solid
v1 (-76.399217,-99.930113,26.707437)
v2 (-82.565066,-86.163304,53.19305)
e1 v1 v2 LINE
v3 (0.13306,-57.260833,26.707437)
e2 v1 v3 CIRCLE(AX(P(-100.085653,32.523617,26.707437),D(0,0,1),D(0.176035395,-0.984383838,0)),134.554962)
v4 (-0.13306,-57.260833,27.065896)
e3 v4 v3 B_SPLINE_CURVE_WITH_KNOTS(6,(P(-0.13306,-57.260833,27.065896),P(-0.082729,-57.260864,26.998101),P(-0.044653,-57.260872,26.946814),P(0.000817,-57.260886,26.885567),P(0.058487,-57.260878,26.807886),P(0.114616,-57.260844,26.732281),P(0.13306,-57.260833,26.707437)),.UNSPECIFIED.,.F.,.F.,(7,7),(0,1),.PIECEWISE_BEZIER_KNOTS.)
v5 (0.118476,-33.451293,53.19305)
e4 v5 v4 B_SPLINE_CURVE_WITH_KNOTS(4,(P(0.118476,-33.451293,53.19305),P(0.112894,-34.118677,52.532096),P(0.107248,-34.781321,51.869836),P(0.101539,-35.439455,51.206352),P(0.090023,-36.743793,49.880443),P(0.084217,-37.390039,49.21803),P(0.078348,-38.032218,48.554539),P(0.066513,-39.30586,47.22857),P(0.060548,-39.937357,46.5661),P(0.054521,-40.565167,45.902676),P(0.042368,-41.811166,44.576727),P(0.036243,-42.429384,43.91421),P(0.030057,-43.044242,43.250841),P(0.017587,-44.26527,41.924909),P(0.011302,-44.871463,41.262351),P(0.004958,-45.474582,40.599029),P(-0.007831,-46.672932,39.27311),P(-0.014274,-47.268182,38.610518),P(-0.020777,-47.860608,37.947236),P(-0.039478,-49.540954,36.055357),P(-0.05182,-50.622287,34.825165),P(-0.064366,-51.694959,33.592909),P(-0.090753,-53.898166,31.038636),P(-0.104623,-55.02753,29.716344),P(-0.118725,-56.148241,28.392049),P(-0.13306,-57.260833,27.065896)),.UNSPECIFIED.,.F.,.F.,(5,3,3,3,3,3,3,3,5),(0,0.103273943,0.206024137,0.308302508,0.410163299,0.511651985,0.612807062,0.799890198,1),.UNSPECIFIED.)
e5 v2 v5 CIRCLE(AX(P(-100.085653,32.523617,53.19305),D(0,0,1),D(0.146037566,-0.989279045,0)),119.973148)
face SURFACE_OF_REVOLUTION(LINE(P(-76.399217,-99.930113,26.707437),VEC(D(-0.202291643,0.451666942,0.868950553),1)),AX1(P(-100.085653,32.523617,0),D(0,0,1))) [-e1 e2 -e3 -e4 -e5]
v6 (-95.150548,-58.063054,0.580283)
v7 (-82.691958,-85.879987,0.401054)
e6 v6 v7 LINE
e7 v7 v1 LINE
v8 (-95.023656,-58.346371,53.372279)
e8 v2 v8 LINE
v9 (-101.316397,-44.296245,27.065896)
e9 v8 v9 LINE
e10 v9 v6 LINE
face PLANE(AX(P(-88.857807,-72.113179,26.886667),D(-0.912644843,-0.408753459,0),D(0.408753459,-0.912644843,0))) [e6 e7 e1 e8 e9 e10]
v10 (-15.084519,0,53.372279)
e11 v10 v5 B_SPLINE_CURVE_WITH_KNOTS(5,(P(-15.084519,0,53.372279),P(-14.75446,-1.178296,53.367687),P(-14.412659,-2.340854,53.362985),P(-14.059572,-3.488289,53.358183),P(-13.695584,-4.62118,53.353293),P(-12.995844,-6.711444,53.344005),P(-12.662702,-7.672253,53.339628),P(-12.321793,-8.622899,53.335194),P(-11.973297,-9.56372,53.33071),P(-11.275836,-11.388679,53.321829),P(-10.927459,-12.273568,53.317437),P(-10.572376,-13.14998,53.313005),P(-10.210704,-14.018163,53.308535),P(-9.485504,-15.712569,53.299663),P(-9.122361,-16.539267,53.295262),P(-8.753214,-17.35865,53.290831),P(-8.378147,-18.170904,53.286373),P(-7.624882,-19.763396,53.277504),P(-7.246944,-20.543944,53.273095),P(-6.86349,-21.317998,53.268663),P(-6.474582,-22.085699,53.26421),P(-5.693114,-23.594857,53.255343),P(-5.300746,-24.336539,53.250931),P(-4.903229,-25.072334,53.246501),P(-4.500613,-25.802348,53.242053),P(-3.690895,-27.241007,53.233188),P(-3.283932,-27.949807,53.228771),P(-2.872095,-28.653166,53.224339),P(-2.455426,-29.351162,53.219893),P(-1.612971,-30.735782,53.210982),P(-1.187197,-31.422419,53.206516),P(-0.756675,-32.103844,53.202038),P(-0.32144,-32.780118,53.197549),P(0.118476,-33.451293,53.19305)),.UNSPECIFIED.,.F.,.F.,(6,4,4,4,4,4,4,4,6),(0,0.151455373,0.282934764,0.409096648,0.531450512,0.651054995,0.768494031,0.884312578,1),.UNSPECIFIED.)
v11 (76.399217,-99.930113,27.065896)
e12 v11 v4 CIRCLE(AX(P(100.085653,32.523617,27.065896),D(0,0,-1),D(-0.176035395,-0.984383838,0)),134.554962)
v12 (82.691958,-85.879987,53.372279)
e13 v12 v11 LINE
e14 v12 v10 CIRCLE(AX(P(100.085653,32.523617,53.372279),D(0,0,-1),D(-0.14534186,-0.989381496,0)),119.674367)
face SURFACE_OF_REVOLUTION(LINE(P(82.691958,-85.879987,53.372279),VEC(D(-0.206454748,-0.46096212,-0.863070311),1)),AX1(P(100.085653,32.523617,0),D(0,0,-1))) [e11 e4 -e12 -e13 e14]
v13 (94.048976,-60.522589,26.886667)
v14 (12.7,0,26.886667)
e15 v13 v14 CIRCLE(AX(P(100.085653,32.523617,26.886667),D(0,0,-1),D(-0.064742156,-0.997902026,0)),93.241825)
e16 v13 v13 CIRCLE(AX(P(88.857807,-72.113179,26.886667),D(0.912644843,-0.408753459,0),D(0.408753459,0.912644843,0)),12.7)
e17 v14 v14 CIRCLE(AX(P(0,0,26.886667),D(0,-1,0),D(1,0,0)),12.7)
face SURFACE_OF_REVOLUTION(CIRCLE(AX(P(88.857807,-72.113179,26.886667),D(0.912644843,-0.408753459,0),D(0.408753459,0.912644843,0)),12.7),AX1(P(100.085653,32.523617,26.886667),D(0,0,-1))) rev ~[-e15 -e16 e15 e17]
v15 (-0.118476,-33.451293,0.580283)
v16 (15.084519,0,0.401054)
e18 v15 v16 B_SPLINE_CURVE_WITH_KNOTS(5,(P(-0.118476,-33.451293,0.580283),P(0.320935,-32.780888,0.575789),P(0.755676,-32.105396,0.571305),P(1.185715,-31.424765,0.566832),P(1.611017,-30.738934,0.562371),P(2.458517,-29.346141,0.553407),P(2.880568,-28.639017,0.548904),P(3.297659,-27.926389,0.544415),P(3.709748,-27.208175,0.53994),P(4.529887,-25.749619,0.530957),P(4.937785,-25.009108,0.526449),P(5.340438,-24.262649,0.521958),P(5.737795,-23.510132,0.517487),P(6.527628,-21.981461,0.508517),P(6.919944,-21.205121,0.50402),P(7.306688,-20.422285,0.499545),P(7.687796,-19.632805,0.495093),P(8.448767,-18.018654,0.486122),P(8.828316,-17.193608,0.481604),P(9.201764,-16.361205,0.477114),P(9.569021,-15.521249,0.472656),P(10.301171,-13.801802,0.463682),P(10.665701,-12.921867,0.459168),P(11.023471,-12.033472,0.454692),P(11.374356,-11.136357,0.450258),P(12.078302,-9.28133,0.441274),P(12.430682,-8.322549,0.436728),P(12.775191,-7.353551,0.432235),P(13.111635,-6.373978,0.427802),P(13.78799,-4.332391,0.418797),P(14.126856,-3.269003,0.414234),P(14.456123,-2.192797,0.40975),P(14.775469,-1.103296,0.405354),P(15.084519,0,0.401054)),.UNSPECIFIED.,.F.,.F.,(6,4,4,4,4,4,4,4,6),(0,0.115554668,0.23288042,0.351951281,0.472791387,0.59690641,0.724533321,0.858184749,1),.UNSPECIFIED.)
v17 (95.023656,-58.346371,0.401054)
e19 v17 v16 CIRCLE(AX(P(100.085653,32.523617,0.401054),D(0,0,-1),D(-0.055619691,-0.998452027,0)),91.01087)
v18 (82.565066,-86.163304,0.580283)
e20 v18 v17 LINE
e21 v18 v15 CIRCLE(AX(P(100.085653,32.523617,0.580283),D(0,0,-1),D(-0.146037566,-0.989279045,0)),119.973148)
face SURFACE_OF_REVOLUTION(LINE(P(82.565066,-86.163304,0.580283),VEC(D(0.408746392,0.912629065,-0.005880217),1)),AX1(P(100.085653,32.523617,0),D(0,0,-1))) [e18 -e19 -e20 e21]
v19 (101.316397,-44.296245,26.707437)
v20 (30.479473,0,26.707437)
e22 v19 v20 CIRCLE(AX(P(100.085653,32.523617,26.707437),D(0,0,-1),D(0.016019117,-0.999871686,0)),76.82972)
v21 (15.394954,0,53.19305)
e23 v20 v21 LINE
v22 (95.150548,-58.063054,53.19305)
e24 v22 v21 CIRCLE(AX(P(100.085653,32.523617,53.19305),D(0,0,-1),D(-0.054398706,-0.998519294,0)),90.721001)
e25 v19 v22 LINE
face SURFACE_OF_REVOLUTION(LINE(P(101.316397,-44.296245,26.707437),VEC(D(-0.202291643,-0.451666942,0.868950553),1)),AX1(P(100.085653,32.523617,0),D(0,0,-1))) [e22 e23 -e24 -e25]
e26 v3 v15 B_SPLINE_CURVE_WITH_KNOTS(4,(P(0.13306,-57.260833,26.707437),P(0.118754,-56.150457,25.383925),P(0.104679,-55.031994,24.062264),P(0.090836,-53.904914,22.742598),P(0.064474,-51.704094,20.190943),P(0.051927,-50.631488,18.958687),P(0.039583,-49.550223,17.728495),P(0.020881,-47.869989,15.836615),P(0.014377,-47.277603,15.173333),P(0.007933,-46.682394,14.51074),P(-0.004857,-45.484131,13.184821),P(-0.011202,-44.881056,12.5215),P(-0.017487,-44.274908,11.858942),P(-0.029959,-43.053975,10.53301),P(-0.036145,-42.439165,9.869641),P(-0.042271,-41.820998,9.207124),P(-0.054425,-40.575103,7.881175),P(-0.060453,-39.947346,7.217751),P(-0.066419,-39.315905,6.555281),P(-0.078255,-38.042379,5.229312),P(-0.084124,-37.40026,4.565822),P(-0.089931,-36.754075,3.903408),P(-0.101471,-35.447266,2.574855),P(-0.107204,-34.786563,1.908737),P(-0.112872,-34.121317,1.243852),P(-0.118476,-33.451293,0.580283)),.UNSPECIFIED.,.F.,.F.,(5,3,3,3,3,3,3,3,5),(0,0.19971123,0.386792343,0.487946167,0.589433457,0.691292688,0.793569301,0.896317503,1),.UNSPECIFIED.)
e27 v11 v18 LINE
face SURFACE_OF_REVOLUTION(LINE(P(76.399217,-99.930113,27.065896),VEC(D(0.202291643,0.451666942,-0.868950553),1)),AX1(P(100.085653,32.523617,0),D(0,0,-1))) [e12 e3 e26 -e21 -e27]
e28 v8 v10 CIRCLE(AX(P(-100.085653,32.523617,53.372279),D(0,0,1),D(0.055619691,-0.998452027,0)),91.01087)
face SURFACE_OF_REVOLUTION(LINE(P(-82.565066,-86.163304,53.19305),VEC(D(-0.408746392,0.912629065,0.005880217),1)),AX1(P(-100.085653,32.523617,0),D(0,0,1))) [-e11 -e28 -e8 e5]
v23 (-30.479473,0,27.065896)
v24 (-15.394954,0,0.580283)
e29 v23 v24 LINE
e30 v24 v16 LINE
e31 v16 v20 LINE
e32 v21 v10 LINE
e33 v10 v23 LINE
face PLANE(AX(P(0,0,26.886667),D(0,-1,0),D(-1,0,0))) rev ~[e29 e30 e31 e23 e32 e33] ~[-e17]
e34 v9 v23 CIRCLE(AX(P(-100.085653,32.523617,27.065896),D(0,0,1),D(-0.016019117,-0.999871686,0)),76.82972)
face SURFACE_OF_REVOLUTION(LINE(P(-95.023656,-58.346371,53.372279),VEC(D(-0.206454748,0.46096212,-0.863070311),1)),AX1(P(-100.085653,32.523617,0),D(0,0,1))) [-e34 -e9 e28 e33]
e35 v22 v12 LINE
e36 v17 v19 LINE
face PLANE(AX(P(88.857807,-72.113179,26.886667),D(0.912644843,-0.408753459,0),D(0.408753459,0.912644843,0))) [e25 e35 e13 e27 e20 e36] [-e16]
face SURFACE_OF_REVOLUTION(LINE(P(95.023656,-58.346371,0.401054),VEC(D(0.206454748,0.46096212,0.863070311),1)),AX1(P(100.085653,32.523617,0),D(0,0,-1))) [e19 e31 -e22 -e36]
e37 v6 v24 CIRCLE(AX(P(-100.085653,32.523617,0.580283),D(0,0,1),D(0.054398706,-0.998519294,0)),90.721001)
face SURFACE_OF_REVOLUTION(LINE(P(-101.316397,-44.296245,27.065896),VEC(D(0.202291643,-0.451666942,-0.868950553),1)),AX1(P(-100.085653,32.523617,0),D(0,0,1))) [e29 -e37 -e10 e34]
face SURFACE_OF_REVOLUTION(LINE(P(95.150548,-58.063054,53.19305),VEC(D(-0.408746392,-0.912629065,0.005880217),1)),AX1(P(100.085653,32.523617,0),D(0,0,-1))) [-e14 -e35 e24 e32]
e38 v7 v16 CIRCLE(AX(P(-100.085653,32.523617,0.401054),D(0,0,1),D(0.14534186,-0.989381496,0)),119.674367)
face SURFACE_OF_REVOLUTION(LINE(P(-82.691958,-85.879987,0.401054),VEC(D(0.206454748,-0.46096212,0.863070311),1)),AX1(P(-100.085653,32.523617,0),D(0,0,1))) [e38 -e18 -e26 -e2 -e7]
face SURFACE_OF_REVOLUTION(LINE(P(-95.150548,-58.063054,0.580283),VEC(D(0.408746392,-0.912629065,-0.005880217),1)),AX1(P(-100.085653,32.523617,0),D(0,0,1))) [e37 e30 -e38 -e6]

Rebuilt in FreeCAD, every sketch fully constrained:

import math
import FreeCAD as App
import Part
import Sketcher

V = App.Vector
Q = App.Units.Quantity

doc = App.newDocument("Part")
body = doc.addObject("PartDesign::Body", "Body")

sketch1 = doc.addObject("Sketcher::SketchObject", "Sketch")
body.addObject(sketch1)
sketch1.AttachmentSupport = (doc.XZ_Plane, [""])
sketch1.MapMode = "FlatFace"
sketch1.addGeometry([
    Part.LineSegment(V(-30, 27, 0), V(-15, 1, 0)),
    Part.LineSegment(V(-15, 1, 0), V(15, 0, 0)),
    Part.LineSegment(V(15, 0, 0), V(30, 27, 0)),
    Part.LineSegment(V(30, 27, 0), V(15, 53, 0)),
    Part.LineSegment(V(15, 53, 0), V(-15, 53, 0)),
    Part.LineSegment(V(-15, 53, 0), V(-30, 27, 0)),
], False)
sketch1.addConstraint([
    Sketcher.Constraint("Coincident", 0, 2, 1, 1),
    Sketcher.Constraint("Coincident", 1, 2, 2, 1),
    Sketcher.Constraint("Coincident", 2, 2, 3, 1),
    Sketcher.Constraint("Coincident", 3, 2, 4, 1),
    Sketcher.Constraint("Coincident", 4, 2, 5, 1),
    Sketcher.Constraint("Coincident", 5, 2, 0, 1),
    Sketcher.Constraint("Parallel", 0, 3),
    Sketcher.Constraint("Parallel", 1, 4),
    Sketcher.Constraint("Parallel", 2, 5),
    Sketcher.Constraint("Equal", 0, 1),
    Sketcher.Constraint("Equal", 1, 2),
    Sketcher.Constraint("Equal", 2, 3),
    Sketcher.Constraint("Distance", 0, Q("1.2 in")),
    Sketcher.Constraint("DistanceX", -1, 1, 1, 2, 15.084519),
    Sketcher.Constraint("DistanceY", -1, 1, 3, 2, 53.19305),
    Sketcher.Constraint("DistanceX", 4, 2, -1, 1, 15.084519),
    Sketcher.Constraint("DistanceY", -1, 1, 4, 2, 53.372279),
    Sketcher.Constraint("DistanceX", 3, 2, 2, 2, 15.084519),
])

sketch2 = doc.addObject("Sketcher::SketchObject", "Sketch001")
body.addObject(sketch2)
sketch2.AttachmentSupport = (doc.XY_Plane, [""])
sketch2.MapMode = "FlatFace"
sketch2.addGeometry(Part.ArcOfCircle(Part.Circle(V(100, 33, 0), V(0, 0, 1), 105), math.radians(-162), math.radians(-96)), False)
sketch2.addConstraint([
    Sketcher.Constraint("Coincident", 0, 1, -1, 1),
    Sketcher.Constraint("Radius", 0, 105.237463),
    Sketcher.Constraint("DistanceY", 0, 2, -1, 1, 72.113179),
    Sketcher.Constraint("DistanceX", -1, 1, 0, 3, 100.085653),
])
doc.recompute()

additivepipe = doc.addObject("PartDesign::AdditivePipe", "AdditivePipe")
body.addObject(additivepipe)
additivepipe.Profile = sketch1
additivepipe.Spine = (sketch2, ["Edge1"])

sketch3 = doc.addObject("Sketcher::SketchObject", "Sketch002")
body.addObject(sketch3)
sketch3.AttachmentSupport = (doc.XZ_Plane, [""])
sketch3.MapMode = "FlatFace"
sketch3.addGeometry([
    Part.LineSegment(V(-30, 27, 0), V(-15, 1, 0)),
    Part.LineSegment(V(-15, 1, 0), V(15, 0, 0)),
    Part.LineSegment(V(15, 0, 0), V(30, 27, 0)),
    Part.LineSegment(V(30, 27, 0), V(15, 53, 0)),
    Part.LineSegment(V(15, 53, 0), V(-15, 53, 0)),
    Part.LineSegment(V(-15, 53, 0), V(-30, 27, 0)),
], False)
sketch3.addConstraint([
    Sketcher.Constraint("Coincident", 0, 2, 1, 1),
    Sketcher.Constraint("Coincident", 1, 2, 2, 1),
    Sketcher.Constraint("Coincident", 2, 2, 3, 1),
    Sketcher.Constraint("Coincident", 3, 2, 4, 1),
    Sketcher.Constraint("Coincident", 4, 2, 5, 1),
    Sketcher.Constraint("Coincident", 5, 2, 0, 1),
    Sketcher.Constraint("Parallel", 0, 3),
    Sketcher.Constraint("Parallel", 1, 4),
    Sketcher.Constraint("Parallel", 2, 5),
    Sketcher.Constraint("Equal", 0, 1),
    Sketcher.Constraint("Equal", 1, 2),
    Sketcher.Constraint("Equal", 2, 3),
    Sketcher.Constraint("Distance", 0, Q("1.2 in")),
    Sketcher.Constraint("DistanceX", -1, 1, 1, 2, 15.084519),
    Sketcher.Constraint("DistanceY", -1, 1, 3, 2, 53.19305),
    Sketcher.Constraint("DistanceX", 4, 2, -1, 1, 15.084519),
    Sketcher.Constraint("DistanceY", -1, 1, 4, 2, 53.372279),
    Sketcher.Constraint("DistanceX", 3, 2, 2, 2, 15.084519),
])

sketch4 = doc.addObject("Sketcher::SketchObject", "Sketch003")
body.addObject(sketch4)
sketch4.AttachmentSupport = (doc.XY_Plane, [""])
sketch4.MapMode = "FlatFace"
sketch4.addGeometry(Part.ArcOfCircle(Part.Circle(V(-100, 33, 0), V(0, 0, 1), 105), math.radians(-84), math.radians(-18)), False)
sketch4.addConstraint([
    Sketcher.Constraint("Coincident", 0, 2, -1, 1),
    Sketcher.Constraint("Radius", 0, 105.237463),
    Sketcher.Constraint("DistanceY", 0, 1, -1, 1, 72.113179),
    Sketcher.Constraint("DistanceX", 0, 3, -1, 1, 100.085653),
])
doc.recompute()

additivepipe2 = doc.addObject("PartDesign::AdditivePipe", "AdditivePipe001")
body.addObject(additivepipe2)
additivepipe2.Profile = sketch3
additivepipe2.Spine = (sketch4, ["Edge1"])

sketch5 = doc.addObject("Sketcher::SketchObject", "Sketch004")
body.addObject(sketch5)
sketch5.AttachmentSupport = (doc.XZ_Plane, [""])
sketch5.MapMode = "FlatFace"
sketch5.addGeometry(Part.Circle(V(0, 27, 0), V(0, 0, 1), 13), False)
sketch5.addConstraint([
    Sketcher.Constraint("PointOnObject", 0, 3, -2),
    Sketcher.Constraint("Diameter", 0, Q("1 in")),
    Sketcher.Constraint("DistanceY", -1, 1, 0, 3, 26.886667),
])

sketch6 = doc.addObject("Sketcher::SketchObject", "Sketch005")
body.addObject(sketch6)
sketch6.AttachmentSupport = (doc.XY_Plane, [""])
sketch6.MapMode = "FlatFace"
sketch6.addGeometry(Part.ArcOfCircle(Part.Circle(V(100, 33, 0), V(0, 0, 1), 105), math.radians(-162), math.radians(-96)), False)
sketch6.addConstraint([
    Sketcher.Constraint("Coincident", 0, 1, -1, 1),
    Sketcher.Constraint("Radius", 0, 105.237463),
    Sketcher.Constraint("DistanceY", 0, 2, -1, 1, 72.113179),
    Sketcher.Constraint("DistanceX", -1, 1, 0, 3, 100.085653),
])
doc.recompute()

subtractivepipe = doc.addObject("PartDesign::SubtractivePipe", "SubtractivePipe")
body.addObject(subtractivepipe)
subtractivepipe.Profile = sketch5
subtractivepipe.Spine = (sketch6, ["Edge1"])

doc.recompute()
